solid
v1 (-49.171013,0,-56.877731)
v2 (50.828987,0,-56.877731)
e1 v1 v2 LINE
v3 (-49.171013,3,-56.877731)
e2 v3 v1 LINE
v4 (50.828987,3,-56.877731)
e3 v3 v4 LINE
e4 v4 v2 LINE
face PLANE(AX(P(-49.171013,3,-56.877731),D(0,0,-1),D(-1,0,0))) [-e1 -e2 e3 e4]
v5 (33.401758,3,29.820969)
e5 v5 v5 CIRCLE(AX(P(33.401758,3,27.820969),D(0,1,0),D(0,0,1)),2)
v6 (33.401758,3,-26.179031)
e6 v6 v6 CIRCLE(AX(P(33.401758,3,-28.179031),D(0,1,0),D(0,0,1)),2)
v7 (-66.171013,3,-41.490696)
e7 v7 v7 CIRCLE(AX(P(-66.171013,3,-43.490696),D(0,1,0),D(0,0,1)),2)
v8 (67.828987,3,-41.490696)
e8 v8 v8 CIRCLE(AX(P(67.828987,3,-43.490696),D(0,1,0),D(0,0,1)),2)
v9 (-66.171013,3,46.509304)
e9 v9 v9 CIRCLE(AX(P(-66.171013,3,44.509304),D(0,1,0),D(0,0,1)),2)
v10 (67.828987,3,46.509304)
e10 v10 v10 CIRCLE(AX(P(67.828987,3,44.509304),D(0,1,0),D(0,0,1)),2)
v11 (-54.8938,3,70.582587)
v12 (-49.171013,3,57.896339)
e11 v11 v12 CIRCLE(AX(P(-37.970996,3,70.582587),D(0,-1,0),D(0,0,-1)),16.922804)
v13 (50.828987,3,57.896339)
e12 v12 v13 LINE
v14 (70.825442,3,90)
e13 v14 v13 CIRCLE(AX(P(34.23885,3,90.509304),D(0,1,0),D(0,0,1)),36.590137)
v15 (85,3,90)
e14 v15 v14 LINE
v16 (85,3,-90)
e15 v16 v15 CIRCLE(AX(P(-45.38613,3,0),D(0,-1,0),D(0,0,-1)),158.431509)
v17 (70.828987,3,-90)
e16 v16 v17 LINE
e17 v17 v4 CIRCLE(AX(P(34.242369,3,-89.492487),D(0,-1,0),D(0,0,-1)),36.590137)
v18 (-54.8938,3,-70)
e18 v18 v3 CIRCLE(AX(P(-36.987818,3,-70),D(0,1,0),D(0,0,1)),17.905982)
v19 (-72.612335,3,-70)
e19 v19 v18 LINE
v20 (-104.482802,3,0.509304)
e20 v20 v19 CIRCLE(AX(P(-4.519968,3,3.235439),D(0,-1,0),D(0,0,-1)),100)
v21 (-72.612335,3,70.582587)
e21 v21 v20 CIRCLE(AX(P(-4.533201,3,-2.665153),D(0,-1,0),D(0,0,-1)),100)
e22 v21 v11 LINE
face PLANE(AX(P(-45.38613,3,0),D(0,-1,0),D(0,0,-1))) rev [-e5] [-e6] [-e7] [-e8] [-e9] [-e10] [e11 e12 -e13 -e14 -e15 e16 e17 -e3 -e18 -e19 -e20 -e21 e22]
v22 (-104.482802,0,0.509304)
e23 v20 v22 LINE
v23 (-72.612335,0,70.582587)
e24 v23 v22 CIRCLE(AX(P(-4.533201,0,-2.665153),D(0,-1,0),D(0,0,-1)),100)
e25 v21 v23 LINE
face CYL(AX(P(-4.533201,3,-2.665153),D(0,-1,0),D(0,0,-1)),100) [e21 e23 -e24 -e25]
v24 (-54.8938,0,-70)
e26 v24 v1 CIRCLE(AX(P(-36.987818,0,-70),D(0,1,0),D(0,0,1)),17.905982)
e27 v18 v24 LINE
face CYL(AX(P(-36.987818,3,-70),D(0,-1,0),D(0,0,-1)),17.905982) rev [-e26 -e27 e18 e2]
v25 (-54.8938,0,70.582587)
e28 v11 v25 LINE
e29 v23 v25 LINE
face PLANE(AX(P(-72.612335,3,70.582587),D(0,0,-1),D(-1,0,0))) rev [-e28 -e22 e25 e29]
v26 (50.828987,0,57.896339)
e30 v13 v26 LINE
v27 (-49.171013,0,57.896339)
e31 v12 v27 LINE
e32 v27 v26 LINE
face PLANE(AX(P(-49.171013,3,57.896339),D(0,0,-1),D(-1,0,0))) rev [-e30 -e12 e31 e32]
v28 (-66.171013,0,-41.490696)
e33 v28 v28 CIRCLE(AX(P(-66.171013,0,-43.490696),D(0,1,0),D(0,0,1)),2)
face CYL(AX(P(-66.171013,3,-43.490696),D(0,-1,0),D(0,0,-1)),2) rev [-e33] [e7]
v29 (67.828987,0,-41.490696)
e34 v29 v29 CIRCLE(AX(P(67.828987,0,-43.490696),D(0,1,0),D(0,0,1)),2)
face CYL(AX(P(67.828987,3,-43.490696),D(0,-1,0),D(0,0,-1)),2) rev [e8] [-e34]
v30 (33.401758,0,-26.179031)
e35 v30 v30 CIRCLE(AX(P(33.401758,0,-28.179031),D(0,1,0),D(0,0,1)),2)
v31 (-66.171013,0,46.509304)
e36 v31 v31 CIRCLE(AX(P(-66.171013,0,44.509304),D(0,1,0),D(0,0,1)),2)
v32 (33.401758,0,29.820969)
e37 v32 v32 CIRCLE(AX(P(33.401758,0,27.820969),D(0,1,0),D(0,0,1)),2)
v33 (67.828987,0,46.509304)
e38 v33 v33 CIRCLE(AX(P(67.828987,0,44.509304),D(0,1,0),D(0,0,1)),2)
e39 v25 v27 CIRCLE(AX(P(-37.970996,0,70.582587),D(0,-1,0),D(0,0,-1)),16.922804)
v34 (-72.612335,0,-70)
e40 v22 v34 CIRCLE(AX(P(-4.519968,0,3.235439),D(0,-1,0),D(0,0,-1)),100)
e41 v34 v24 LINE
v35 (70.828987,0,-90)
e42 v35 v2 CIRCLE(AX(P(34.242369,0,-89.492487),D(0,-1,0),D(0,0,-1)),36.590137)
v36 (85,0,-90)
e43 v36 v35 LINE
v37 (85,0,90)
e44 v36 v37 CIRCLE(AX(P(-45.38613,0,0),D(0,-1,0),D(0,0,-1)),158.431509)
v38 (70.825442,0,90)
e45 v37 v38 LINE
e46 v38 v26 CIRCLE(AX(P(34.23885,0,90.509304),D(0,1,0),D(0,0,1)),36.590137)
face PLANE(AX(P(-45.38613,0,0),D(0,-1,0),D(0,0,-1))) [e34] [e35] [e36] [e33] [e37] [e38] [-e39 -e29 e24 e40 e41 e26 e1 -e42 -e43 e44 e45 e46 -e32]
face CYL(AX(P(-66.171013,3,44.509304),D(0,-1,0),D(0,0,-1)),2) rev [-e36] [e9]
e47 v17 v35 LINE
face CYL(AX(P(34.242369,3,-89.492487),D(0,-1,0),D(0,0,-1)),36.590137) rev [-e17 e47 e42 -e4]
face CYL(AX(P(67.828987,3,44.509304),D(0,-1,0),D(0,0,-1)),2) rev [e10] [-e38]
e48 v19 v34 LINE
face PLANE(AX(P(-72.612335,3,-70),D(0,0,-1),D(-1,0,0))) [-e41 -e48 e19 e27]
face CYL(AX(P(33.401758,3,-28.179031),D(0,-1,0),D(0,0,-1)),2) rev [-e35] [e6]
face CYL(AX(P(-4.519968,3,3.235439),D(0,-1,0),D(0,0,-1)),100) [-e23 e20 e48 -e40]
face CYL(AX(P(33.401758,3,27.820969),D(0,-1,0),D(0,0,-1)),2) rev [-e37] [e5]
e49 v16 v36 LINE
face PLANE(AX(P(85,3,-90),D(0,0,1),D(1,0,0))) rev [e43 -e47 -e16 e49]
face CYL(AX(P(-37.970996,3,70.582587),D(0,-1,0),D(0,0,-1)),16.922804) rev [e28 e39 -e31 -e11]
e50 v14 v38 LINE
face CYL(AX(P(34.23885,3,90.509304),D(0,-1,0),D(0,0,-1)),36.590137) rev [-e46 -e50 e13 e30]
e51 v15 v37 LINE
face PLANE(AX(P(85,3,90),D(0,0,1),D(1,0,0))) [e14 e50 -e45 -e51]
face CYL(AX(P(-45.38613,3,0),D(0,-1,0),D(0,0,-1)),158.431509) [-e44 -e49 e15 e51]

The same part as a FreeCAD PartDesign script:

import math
import FreeCAD as App
import Part
import Sketcher

doc = App.newDocument("Part")
params = doc.addObject("Spreadsheet::Sheet", "Params")
for row, (alias, value) in enumerate([
    ("sketch1_diameter", "4 mm"),
    ("sketch1_radius", "100 mm"),
    ("sketch1_width", "100 mm"),
    ("pad1_length", "3 mm"),
], start=1):
    params.set(f"A{row}", alias)
    params.set(f"B{row}", "=" + value)
    params.setAlias(f"B{row}", alias)

body = doc.addObject("PartDesign::Body", "Body")

sketch1 = body.newObject("Sketcher::SketchObject", "Sketch")
sketch1.AttachmentSupport = (doc.getObject("XZ_Plane"), [""])
sketch1.MapMode = "FlatFace"
sketch1.addGeometry([
    Part.LineSegment(App.Vector(50.828987, -56.877731, 0), App.Vector(-49.171013, -56.877731, 0)),
    Part.ArcOfCircle(Part.Circle(App.Vector(-36.987818, -70, 0), App.Vector(0, 0, 1), 17.905982), math.radians(132.874757), math.radians(180)),
    Part.LineSegment(App.Vector(-54.8938, -70, 0), App.Vector(-72.612335, -70, 0)),
    Part.ArcOfCircle(Part.Circle(App.Vector(-4.519968, 3.235439, 0), App.Vector(0, 0, 1), 100), math.radians(-178.437846), math.radians(-132.915864)),
    Part.ArcOfCircle(Part.Circle(App.Vector(-4.533201, -2.665153, 0), App.Vector(0, 0, 1), 100), math.radians(132.905512), math.radians(178.180864)),
    Part.LineSegment(App.Vector(-72.612335, 70.582587, 0), App.Vector(-54.8938, 70.582587, 0)),
    Part.ArcOfCircle(Part.Circle(App.Vector(-37.970996, 70.582587, 0), App.Vector(0, 0, 1), 16.922804), math.radians(180), math.radians(228.56042)),
    Part.LineSegment(App.Vector(-49.171013, 57.896339, 0), App.Vector(50.828987, 57.896339, 0)),
    Part.ArcOfCircle(Part.Circle(App.Vector(34.23885, 90.509304, 0), App.Vector(0, 0, 1), 36.590137), math.radians(-63.037668), math.radians(-0.797534)),
    Part.LineSegment(App.Vector(70.825442, 90, 0), App.Vector(85, 90, 0)),
    Part.ArcOfCircle(Part.Circle(App.Vector(-45.38613, 0, 0), App.Vector(0, 0, 1), 158.431509), math.radians(-34.615668), math.radians(34.615668)),
    Part.LineSegment(App.Vector(85, -90, 0), App.Vector(70.828987, -90, 0)),
    Part.ArcOfCircle(Part.Circle(App.Vector(34.242369, -89.492487, 0), App.Vector(0, 0, 1), 36.590137), math.radians(-0.794731), math.radians(63.043852)),
    Part.Circle(App.Vector(67.828987, 44.509304, 0), App.Vector(0, 0, 1), 2),
    Part.Circle(App.Vector(33.401758, 27.820969, 0), App.Vector(0, 0, 1), 2),
    Part.Circle(App.Vector(-66.171013, 44.509304, 0), App.Vector(0, 0, 1), 2),
    Part.Circle(App.Vector(67.828987, -43.490696, 0), App.Vector(0, 0, 1), 2),
    Part.Circle(App.Vector(33.401758, -28.179031, 0), App.Vector(0, 0, 1), 2),
    Part.Circle(App.Vector(-66.171013, -43.490696, 0), App.Vector(0, 0, 1), 2),
], False)
sketch1.addConstraint([
    Sketcher.Constraint("Coincident", 0, 2, 1, 1),
    Sketcher.Constraint("Coincident", 1, 2, 2, 1),
    Sketcher.Constraint("Coincident", 2, 2, 3, 2),
    Sketcher.Constraint("Coincident", 3, 1, 4, 2),
    Sketcher.Constraint("Coincident", 4, 1, 5, 1),
    Sketcher.Constraint("Coincident", 5, 2, 6, 1),
    Sketcher.Constraint("Coincident", 6, 2, 7, 1),
    Sketcher.Constraint("Coincident", 7, 2, 8, 1),
    Sketcher.Constraint("Coincident", 8, 2, 9, 1),
    Sketcher.Constraint("Coincident", 9, 2, 10, 2),
    Sketcher.Constraint("Coincident", 10, 1, 11, 1),
    Sketcher.Constraint("Coincident", 11, 2, 12, 1),
    Sketcher.Constraint("Coincident", 12, 2, 0, 1),
    Sketcher.Constraint("Horizontal", 0),
    Sketcher.Constraint("Horizontal", 2),
    Sketcher.Constraint("Horizontal", 5),
    Sketcher.Constraint("Horizontal", 7),
    Sketcher.Constraint("Horizontal", 9),
    Sketcher.Constraint("Horizontal", 11),
    Sketcher.Constraint("Equal", 3, 4),
    Sketcher.Constraint("Equal", 8, 12),
    Sketcher.Constraint("Equal", 13, 14),
    Sketcher.Constraint("Equal", 14, 15),
    Sketcher.Constraint("Equal", 15, 16),
    Sketcher.Constraint("Equal", 16, 17),
    Sketcher.Constraint("Equal", 17, 18),
    Sketcher.Constraint("Symmetric", 9, 2, 10, 1, -1),
    Sketcher.Constraint("Horizontal", 13, 3, 15, 3),
    Sketcher.Constraint("Horizontal", 16, 3, 18, 3),
    Sketcher.Constraint("Horizontal", 6, 3, 4, 1),
    Sketcher.Constraint("Vertical", 13, 3, 16, 3),
    Sketcher.Constraint("Vertical", 14, 3, 17, 3),
    Sketcher.Constraint("Vertical", 15, 3, 18, 3),
    Sketcher.Constraint("Vertical", 2, 2, 4, 1),
    Sketcher.Constraint("Vertical", 1, 2, 5, 2),
    Sketcher.Constraint("Vertical", 0, 2, 6, 2),
    Sketcher.Constraint("Vertical", 7, 2, 12, 2),
    Sketcher.Constraint("Diameter", 13, 4.0),
    Sketcher.Constraint("Radius", 3, 100.0),
    Sketcher.Constraint("DistanceX", 0, 2, 0, 1, 100.0),
    Sketcher.Constraint("DistanceY", 1, 3, -1, 1, 70.0),
    Sketcher.Constraint("DistanceY", 1, 2, -1, 1, 70.0),
    Sketcher.Constraint("DistanceY", -1, 1, 8, 2, 90.0),
    Sketcher.Constraint("DistanceX", -1, 1, 9, 2, 85.0),
    Sketcher.Constraint("DistanceY", 13, 3, 8, 3, 46.0),
    Sketcher.Constraint("DistanceY", 16, 3, 13, 3, 88.0),
    Sketcher.Constraint("DistanceY", 17, 3, 14, 3, 56.0),
    Sketcher.Constraint("DistanceX", 18, 3, 0, 2, 17.0),
    Sketcher.Constraint("DistanceY", 18, 3, 3, 1, 44.0),
    Sketcher.Constraint("DistanceX", 7, 2, 13, 3, 17.0),
    Sketcher.Constraint("DistanceX", 16, 3, 11, 2, 3.0),
    Sketcher.Constraint("Radius", 1, 17.905982),
    Sketcher.Constraint("Radius", 10, 158.431509),
    Sketcher.Constraint("Radius", 6, 16.922804),
    Sketcher.Constraint("Radius", 8, 36.590137),
    Sketcher.Constraint("DistanceX", 4, 3, -1, 1, 4.533201),
    Sketcher.Constraint("DistanceX", 1, 2, -1, 1, 54.8938),
    Sketcher.Constraint("DistanceX", 10, 3, 12, 3, 79.6285),
    Sketcher.Constraint("DistanceY", 3, 3, 7, 2, 54.660899),
    Sketcher.Constraint("DistanceY", 12, 2, 17, 3, 28.698701),
    Sketcher.Constraint("DistanceX", 2, 2, 2, 1, 17.718536),
    Sketcher.Constraint("DistanceX", 9, 1, 9, 2, 14.174558),
    Sketcher.Constraint("DistanceX", 14, 3, 13, 3, 34.427229),
])
sketch1.setExpression("Constraints[37]", "Params.sketch1_diameter")
sketch1.setExpression("Constraints[38]", "Params.sketch1_radius")
sketch1.setExpression("Constraints[39]", "Params.sketch1_width")
pad1 = body.newObject("PartDesign::Pad", "Pad")
pad1.Profile = sketch1
pad1.setExpression("Length", "Params.pad1_length")
pad1.Reversed = True

doc.recompute()
